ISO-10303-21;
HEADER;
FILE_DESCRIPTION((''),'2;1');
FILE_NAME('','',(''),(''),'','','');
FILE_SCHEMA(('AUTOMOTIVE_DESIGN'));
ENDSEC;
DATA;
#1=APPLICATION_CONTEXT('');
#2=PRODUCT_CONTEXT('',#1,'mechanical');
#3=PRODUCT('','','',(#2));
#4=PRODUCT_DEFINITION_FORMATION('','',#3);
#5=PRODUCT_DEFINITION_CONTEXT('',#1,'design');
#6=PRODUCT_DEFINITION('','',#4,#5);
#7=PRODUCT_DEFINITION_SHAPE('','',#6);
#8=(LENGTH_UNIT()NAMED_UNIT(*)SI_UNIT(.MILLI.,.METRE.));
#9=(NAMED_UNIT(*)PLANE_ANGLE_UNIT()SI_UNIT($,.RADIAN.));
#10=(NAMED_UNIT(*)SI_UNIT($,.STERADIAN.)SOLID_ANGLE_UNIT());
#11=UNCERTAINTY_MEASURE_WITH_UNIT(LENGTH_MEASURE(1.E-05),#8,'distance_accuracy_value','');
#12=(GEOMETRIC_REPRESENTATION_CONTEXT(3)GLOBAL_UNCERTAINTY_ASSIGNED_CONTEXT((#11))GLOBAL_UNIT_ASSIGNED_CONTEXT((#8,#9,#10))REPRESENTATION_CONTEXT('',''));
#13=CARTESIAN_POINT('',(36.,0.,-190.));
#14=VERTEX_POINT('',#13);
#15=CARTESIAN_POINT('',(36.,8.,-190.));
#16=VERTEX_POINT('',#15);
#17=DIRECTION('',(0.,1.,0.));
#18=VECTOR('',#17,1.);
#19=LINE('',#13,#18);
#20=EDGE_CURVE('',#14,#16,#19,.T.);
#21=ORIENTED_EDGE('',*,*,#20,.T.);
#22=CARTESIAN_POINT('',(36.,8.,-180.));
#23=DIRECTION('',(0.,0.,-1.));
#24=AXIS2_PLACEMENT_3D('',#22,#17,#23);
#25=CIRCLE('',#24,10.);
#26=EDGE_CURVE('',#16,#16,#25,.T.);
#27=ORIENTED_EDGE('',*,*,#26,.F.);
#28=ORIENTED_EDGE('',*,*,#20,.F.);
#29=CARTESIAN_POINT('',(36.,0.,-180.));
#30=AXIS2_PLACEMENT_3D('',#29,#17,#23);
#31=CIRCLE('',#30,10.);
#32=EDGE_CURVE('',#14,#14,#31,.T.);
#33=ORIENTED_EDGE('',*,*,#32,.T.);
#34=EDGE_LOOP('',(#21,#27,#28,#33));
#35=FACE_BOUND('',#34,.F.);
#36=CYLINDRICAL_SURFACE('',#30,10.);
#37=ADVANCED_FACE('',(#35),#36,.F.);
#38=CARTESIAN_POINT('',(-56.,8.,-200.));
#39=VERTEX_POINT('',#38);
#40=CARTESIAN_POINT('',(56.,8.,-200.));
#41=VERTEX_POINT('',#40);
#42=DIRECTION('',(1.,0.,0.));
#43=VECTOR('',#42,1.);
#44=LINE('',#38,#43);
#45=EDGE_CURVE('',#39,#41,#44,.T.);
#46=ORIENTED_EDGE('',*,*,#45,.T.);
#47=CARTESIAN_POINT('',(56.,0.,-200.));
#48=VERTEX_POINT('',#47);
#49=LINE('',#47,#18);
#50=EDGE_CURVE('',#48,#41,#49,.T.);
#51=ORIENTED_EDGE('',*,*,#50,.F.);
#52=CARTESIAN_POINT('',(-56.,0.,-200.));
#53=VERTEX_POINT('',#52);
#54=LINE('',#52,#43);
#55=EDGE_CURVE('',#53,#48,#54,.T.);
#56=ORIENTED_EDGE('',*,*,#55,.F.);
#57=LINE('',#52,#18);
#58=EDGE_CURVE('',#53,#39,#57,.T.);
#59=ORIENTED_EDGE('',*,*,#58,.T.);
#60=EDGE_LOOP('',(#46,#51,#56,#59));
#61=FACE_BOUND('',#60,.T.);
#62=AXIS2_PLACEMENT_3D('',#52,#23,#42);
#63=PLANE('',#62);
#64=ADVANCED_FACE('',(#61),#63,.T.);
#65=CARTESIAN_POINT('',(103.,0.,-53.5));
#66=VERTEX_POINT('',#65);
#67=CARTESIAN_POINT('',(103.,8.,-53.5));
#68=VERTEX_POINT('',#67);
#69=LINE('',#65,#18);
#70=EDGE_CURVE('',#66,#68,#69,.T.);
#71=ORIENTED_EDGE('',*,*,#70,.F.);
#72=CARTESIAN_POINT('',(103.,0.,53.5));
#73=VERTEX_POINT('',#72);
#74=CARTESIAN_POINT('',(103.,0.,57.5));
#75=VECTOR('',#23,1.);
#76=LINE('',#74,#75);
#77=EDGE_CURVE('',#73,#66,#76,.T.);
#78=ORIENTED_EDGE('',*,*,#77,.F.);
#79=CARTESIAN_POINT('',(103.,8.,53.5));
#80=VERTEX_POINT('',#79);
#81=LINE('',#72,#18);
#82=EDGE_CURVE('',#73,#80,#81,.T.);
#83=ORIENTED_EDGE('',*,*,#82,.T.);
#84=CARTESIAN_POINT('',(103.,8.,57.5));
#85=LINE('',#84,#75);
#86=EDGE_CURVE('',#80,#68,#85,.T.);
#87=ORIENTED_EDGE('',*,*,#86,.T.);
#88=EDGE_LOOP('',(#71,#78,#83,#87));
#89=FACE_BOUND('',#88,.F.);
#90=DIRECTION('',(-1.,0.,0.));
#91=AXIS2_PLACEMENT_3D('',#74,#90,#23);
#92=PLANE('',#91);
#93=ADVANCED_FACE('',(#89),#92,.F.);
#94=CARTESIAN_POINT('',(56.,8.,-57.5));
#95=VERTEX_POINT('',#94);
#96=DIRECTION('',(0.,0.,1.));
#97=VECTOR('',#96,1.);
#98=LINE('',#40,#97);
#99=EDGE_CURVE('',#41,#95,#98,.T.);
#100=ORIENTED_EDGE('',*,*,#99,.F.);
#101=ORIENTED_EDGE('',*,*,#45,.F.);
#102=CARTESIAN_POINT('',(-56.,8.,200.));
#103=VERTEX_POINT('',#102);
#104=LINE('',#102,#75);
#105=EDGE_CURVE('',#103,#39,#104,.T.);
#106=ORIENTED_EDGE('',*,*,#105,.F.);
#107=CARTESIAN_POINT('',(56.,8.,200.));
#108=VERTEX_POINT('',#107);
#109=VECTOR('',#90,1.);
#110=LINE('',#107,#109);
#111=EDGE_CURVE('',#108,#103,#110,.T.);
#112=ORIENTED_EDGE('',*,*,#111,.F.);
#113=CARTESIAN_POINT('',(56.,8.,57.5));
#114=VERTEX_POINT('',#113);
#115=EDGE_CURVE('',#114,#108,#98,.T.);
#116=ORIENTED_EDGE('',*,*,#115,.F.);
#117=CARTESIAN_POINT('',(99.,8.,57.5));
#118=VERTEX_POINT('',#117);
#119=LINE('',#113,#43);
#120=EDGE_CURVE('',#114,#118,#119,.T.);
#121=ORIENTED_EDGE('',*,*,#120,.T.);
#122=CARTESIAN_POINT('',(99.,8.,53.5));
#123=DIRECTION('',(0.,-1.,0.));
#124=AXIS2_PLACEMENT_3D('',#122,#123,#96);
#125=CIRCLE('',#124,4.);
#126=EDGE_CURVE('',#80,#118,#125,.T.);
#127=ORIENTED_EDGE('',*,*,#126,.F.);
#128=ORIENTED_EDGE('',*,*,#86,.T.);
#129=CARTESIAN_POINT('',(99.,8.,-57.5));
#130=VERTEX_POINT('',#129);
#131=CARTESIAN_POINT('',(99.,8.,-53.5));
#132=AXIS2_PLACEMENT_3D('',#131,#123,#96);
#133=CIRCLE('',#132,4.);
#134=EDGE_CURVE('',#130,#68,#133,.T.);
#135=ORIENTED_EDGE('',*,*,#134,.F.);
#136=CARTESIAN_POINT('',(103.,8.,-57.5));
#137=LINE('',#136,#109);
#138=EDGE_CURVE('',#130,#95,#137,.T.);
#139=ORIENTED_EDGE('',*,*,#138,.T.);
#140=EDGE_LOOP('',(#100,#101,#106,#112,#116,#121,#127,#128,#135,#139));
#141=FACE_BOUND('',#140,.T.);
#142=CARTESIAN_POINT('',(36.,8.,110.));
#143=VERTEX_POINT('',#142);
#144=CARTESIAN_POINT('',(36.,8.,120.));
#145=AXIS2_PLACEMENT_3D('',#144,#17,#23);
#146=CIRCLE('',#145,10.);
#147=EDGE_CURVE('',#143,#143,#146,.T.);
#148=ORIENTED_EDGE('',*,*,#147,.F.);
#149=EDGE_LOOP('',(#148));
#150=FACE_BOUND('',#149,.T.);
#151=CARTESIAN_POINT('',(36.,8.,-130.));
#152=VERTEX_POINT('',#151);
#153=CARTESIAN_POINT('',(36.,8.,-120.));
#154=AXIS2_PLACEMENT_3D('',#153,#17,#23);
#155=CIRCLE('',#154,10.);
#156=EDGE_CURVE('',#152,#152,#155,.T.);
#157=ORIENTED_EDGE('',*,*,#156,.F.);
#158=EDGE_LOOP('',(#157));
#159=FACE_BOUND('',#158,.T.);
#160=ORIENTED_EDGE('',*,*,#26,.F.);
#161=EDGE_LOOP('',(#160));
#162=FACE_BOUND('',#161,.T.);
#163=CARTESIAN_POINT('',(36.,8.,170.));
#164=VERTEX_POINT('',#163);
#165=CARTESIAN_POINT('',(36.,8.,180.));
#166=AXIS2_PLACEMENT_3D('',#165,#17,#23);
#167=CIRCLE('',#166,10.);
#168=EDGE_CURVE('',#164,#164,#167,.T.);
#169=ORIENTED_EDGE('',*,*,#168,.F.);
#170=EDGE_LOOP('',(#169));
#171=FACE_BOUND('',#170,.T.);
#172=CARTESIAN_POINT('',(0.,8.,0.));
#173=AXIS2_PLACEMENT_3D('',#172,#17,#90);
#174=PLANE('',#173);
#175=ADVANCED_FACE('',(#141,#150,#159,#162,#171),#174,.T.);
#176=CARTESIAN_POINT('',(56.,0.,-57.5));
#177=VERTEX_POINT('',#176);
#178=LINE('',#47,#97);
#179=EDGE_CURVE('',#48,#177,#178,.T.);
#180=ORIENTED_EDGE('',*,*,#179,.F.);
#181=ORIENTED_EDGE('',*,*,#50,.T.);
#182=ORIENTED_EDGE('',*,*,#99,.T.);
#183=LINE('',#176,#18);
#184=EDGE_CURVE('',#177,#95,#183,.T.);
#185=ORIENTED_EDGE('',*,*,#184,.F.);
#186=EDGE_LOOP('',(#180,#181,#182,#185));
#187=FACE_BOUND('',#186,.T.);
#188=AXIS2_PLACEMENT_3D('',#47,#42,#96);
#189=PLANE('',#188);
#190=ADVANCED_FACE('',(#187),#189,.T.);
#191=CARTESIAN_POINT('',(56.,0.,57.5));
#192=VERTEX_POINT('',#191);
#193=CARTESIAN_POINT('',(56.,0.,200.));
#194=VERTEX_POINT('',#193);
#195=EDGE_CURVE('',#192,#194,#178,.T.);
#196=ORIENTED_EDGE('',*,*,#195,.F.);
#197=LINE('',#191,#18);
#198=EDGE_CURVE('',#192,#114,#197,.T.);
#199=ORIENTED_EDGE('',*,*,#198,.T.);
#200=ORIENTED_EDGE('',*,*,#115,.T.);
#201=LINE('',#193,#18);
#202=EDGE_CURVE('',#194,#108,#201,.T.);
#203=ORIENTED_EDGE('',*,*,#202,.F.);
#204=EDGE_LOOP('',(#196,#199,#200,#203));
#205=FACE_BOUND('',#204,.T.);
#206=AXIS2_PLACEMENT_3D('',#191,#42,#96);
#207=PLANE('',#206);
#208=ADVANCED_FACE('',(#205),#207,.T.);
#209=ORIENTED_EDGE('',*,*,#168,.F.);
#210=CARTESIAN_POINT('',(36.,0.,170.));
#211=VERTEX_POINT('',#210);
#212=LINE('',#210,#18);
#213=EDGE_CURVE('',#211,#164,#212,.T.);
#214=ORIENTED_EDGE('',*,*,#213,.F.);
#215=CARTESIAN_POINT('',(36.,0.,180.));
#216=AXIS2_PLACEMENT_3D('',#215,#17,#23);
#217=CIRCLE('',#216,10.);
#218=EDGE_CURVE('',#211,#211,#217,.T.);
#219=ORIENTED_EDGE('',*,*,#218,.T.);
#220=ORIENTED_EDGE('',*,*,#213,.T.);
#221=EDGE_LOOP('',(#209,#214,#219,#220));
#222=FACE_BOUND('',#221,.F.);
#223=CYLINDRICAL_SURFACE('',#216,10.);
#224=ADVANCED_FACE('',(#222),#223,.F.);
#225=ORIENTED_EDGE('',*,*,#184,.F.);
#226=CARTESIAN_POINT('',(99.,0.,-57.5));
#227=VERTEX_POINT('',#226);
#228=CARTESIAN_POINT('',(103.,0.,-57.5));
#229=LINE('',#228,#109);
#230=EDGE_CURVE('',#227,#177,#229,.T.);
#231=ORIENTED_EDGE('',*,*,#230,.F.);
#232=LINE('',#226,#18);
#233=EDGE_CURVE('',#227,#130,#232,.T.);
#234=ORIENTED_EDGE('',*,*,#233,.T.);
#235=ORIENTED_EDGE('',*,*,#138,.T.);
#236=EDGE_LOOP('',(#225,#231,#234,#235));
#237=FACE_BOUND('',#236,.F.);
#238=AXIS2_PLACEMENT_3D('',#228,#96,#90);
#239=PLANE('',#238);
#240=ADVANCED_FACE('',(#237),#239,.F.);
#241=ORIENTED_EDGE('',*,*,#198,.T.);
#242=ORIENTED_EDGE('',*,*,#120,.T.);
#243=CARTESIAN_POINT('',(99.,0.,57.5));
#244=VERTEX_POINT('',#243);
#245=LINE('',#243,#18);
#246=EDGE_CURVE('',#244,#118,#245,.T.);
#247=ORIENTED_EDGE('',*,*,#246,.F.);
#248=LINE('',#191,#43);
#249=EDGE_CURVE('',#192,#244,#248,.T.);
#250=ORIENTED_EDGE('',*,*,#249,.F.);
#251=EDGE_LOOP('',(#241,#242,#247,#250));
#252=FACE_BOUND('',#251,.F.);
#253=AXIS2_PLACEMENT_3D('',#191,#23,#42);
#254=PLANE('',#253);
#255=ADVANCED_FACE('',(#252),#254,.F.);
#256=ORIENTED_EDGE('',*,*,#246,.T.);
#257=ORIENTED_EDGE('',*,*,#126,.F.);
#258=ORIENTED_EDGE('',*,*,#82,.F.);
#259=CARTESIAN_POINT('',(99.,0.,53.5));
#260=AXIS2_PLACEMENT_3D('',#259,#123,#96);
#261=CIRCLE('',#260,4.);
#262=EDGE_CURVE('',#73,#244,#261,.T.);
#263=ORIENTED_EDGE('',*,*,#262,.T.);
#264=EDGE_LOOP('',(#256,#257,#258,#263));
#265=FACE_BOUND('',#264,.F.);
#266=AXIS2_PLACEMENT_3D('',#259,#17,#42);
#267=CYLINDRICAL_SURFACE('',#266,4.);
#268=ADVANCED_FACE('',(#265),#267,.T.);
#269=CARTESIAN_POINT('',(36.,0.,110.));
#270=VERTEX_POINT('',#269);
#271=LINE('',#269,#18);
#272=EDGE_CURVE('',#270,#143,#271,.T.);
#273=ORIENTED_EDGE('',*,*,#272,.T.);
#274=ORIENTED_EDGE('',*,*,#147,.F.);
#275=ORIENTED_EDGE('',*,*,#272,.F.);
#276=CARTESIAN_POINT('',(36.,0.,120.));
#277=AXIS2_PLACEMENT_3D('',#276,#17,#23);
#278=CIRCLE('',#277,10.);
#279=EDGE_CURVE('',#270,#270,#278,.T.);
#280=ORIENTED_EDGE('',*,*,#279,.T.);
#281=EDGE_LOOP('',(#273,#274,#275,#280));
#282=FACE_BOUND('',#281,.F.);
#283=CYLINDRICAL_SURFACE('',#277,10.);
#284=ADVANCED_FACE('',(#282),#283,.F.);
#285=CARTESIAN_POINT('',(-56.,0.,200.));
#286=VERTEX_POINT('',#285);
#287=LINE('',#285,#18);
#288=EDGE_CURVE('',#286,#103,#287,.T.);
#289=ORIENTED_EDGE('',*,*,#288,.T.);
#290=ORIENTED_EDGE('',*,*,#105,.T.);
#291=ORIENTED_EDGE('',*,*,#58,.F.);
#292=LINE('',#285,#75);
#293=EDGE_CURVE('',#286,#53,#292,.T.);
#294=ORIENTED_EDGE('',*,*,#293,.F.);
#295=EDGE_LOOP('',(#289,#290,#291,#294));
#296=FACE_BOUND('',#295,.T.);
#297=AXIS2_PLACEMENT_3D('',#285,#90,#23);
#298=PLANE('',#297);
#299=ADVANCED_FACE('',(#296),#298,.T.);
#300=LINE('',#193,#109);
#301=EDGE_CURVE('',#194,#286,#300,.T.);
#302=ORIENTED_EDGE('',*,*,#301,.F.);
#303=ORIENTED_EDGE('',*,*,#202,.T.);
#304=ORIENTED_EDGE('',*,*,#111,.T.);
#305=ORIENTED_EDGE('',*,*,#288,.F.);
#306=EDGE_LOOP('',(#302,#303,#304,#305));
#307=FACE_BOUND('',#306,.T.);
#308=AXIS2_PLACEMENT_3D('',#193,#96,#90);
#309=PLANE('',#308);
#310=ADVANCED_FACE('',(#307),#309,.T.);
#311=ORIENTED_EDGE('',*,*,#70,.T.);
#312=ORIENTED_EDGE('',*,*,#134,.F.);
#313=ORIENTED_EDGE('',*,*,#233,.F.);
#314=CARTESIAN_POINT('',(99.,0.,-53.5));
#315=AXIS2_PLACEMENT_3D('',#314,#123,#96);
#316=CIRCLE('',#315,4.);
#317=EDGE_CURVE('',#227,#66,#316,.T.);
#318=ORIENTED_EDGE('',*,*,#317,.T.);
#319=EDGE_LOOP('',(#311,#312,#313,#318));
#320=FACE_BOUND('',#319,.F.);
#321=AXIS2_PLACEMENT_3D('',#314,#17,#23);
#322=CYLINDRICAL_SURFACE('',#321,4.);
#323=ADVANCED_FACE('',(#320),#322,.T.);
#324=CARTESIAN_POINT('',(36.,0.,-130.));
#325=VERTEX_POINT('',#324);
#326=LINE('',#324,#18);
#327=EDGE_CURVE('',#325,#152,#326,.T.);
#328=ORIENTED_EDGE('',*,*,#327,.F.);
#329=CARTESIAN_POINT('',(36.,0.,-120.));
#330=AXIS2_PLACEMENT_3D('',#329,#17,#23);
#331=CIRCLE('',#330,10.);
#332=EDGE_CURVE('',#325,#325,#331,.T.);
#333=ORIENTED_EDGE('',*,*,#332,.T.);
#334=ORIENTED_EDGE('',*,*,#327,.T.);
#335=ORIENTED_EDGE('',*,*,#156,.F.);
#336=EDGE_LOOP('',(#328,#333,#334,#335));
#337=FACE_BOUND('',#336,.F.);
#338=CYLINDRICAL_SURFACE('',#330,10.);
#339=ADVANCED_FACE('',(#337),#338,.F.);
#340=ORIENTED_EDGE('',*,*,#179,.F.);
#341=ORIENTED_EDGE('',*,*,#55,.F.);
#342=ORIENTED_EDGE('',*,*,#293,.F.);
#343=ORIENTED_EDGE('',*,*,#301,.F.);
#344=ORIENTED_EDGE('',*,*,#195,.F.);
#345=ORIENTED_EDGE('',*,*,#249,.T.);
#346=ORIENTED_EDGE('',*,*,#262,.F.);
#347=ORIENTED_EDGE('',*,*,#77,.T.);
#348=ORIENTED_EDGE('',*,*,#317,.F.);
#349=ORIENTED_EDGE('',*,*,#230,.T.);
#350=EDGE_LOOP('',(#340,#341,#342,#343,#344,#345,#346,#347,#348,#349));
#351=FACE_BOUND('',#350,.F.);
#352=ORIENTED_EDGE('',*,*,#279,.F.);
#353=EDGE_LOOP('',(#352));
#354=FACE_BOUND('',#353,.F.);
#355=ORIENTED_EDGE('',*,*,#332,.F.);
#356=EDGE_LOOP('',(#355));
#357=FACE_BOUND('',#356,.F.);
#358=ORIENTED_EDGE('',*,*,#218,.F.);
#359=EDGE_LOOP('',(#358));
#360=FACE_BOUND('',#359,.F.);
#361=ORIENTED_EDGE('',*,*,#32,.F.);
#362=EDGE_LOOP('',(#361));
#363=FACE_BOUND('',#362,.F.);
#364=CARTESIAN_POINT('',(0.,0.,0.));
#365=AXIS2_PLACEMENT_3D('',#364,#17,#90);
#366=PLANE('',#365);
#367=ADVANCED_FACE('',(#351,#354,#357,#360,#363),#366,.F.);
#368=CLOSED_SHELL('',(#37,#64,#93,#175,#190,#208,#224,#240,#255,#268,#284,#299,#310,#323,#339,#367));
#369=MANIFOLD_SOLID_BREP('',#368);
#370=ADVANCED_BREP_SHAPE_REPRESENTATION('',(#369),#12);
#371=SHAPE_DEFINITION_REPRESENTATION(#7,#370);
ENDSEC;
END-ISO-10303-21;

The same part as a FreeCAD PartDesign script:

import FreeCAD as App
import Part
import Sketcher
Q = App.Units.Quantity


def edges_at(feature, points):
    """Names of the edges that pass closest to the given points."""
    edges = feature.Shape.Edges
    near = lambda p: min(range(len(edges)), key=lambda i: edges[i].distToShape(Part.Vertex(*p))[0])
    return sorted({f"Edge{near(p) + 1}" for p in points})


def add_polygon(sketch, points):
    """Adds a closed chain of lines whose ends are joined by coincident constraints."""
    first, n = sketch.GeometryCount, len(points)
    for a, b in zip(points, points[1:] + points[:1]):
        sketch.addGeometry(Part.LineSegment(App.Vector(*a, 0), App.Vector(*b, 0)), False)
    for i in range(n):
        sketch.addConstraint(Sketcher.Constraint("Coincident", first + i, 2, first + (i + 1) % n, 1))

doc = App.newDocument("Part")
body = doc.addObject("PartDesign::Body", "Body")

# Sketch on XZ plane
sketch1 = body.newObject("Sketcher::SketchObject", "Sketch")
sketch1.AttachmentSupport = (doc.getObject("XZ_Plane"), [""])
sketch1.MapMode = "FlatFace"
add_polygon(sketch1, [(56, -200), (-56, -200), (-56, 200), (56, 200), (56, 58), (103, 58), (103, -58), (56, -58)])  # lines 0-7
sketch1.addConstraint(Sketcher.Constraint("Horizontal", 0))
sketch1.addConstraint(Sketcher.Constraint("Vertical", 1))
sketch1.addConstraint(Sketcher.Constraint("Horizontal", 2))
sketch1.addConstraint(Sketcher.Constraint("Vertical", 3))
sketch1.addConstraint(Sketcher.Constraint("Horizontal", 4))
sketch1.addConstraint(Sketcher.Constraint("Vertical", 5))
sketch1.addConstraint(Sketcher.Constraint("Horizontal", 6))
sketch1.addConstraint(Sketcher.Constraint("Vertical", 7))
sketch1.addConstraint(Sketcher.Constraint("Symmetric", 0, 2, 2, 2, -1, 1))
sketch1.addConstraint(Sketcher.Constraint("Symmetric", 3, 2, 6, 2, -1))
sketch1.addConstraint(Sketcher.Constraint("DistanceX", 0, 2, 0, 1, Q("112 mm")))
sketch1.addConstraint(Sketcher.Constraint("DistanceX", 4, 1, 4, 2, Q("47 mm")))
sketch1.addConstraint(Sketcher.Constraint("DistanceY", 1, 1, 1, 2, Q("400 mm")))
sketch1.addConstraint(Sketcher.Constraint("DistanceY", 5, 2, 5, 1, Q("115 mm")))
pad1 = body.newObject("PartDesign::Pad", "Pad")
pad1.Profile = sketch1
pad1.Length = 8
pad1.Reversed = True

# Sketch on XZ plane
sketch2 = body.newObject("Sketcher::SketchObject", "Sketch001")
sketch2.AttachmentSupport = (doc.getObject("XZ_Plane"), [""])
sketch2.MapMode = "FlatFace"
sketch2.addGeometry(Part.Circle(App.Vector(36, 180, 0), App.Vector(0, 0, 1), 10), False)
sketch2.addGeometry(Part.Circle(App.Vector(36, -180, 0), App.Vector(0, 0, 1), 10), False)
sketch2.addGeometry(Part.Circle(App.Vector(36, -120, 0), App.Vector(0, 0, 1), 10), False)
sketch2.addGeometry(Part.Circle(App.Vector(36, 120, 0), App.Vector(0, 0, 1), 10), False)
sketch2.addConstraint(Sketcher.Constraint("Equal", 0, 1))
sketch2.addConstraint(Sketcher.Constraint("Equal", 1, 2))
sketch2.addConstraint(Sketcher.Constraint("Equal", 2, 3))
sketch2.addConstraint(Sketcher.Constraint("Symmetric", 0, 3, 1, 3, -1))
sketch2.addConstraint(Sketcher.Constraint("Symmetric", 2, 3, 3, 3, -1))
sketch2.addConstraint(Sketcher.Constraint("Vertical", 1, 3, 2, 3))
sketch2.addConstraint(Sketcher.Constraint("Diameter", 0, Q("20 mm")))
sketch2.addConstraint(Sketcher.Constraint("DistanceX", -1, 1, 0, 3, Q("36 mm")))
sketch2.addConstraint(Sketcher.Constraint("DistanceY", -1, 1, 0, 3, Q("180 mm")))
sketch2.addConstraint(Sketcher.Constraint("DistanceY", 2, 3, -1, 1, Q("120 mm")))
doc.recompute()
hole = body.newObject("PartDesign::Hole", "Hole")
hole.Profile = sketch2
hole.ThreadType = "None"
hole.Diameter = 20
hole.DepthType = "ThroughAll"
doc.recompute()

fillet = body.newObject("PartDesign::Fillet", "Fillet")
fillet.Base = (hole, edges_at(hole, [(103, 4, 57.5), (103, 4, -57.5)]))
fillet.Radius = 4

doc.recompute()
